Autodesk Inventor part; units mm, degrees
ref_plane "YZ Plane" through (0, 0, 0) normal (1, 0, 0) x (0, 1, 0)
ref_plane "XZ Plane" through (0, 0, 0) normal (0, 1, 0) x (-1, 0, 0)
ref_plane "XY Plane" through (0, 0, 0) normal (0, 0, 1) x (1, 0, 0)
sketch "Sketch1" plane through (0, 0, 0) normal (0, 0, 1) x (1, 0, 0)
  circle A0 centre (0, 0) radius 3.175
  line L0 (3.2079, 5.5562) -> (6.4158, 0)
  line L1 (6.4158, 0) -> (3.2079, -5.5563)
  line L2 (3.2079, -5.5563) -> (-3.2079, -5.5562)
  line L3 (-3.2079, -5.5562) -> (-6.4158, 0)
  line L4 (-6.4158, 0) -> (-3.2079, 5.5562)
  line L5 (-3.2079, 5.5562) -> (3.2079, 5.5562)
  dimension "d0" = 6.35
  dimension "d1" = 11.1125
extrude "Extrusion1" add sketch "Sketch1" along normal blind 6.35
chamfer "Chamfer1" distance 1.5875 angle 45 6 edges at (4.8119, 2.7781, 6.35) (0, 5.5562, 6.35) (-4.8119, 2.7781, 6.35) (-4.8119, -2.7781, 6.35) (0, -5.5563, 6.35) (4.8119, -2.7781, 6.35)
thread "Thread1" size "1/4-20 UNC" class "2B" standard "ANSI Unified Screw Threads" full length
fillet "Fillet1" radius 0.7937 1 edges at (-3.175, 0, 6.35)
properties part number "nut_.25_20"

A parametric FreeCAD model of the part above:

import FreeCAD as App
import Part
import Sketcher
Q = App.Units.Quantity


def edges_at(feature, points):
    """Names of the edges that pass closest to the given points."""
    edges = feature.Shape.Edges
    near = lambda p: min(range(len(edges)), key=lambda i: edges[i].distToShape(Part.Vertex(*p))[0])
    return sorted({f"Edge{near(p) + 1}" for p in points})


def add_polygon(sketch, points):
    """Adds a closed chain of lines whose ends are joined by coincident constraints."""
    first, n = sketch.GeometryCount, len(points)
    for a, b in zip(points, points[1:] + points[:1]):
        sketch.addGeometry(Part.LineSegment(App.Vector(*a, 0), App.Vector(*b, 0)), False)
    for i in range(n):
        sketch.addConstraint(Sketcher.Constraint("Coincident", first + i, 2, first + (i + 1) % n, 1))

doc = App.newDocument("Part")
body = doc.addObject("PartDesign::Body", "Body")

sketch1 = body.newObject("Sketcher::SketchObject", "Sketch")
sketch1.AttachmentSupport = (doc.getObject("XY_Plane"), [""])
sketch1.MapMode = "FlatFace"
add_polygon(sketch1, [(6.4, 0), (3.2, 5.6), (-3.2, 5.6), (-6.4, 0), (-3.2, -5.6), (3.2, -5.6)])
sketch1.addGeometry(Part.Circle(App.Vector(0, 0, 0), App.Vector(0, 0, 1), 3.2), False)
sketch1.addConstraint([
    Sketcher.Constraint("Horizontal", 1),
    Sketcher.Constraint("Horizontal", 4),
    Sketcher.Constraint("Coincident", 6, 3, -1, 1),
    Sketcher.Constraint("Symmetric", 0, 2, 3, 2, -1, 1),
    Sketcher.Constraint("Symmetric", 2, 2, 5, 2, -1, 1),
    Sketcher.Constraint("PointOnObject", 2, 2, -1),
    Sketcher.Constraint("Parallel", 2, 5),
    Sketcher.Constraint("Vertical", 1, 2, 3, 2),
    Sketcher.Constraint("Diameter", 6, Q("0.25 in")),
    Sketcher.Constraint("Angle", 0, Q("120.0002 deg")),
    Sketcher.Constraint("DistanceY", 3, 2, 1, 2, Q("0.4375 in")),
    Sketcher.Constraint("DistanceX", 1, 2, 1, 1, Q("0.2526 in")),
])
pad1 = body.newObject("PartDesign::Pad", "Pad")
pad1.Profile = sketch1
pad1.Length = Q("0.25 in")
doc.recompute()

chamfer = body.newObject("PartDesign::Chamfer", "Chamfer")
chamfer.Base = (pad1, edges_at(pad1, [
    (4.812, 2.778, 6.35),
    (0, 5.556, 6.35),
    (-4.812, 2.778, 6.35),
    (-4.812, -2.778, 6.35),
    (0, -5.556, 6.35),
    (4.812, -2.778, 6.35),
]))
chamfer.Size = Q("0.0625 in")
doc.recompute()

fillet = body.newObject("PartDesign::Fillet", "Fillet")
fillet.Base = (chamfer, edges_at(chamfer, [(-3.175, 0, 6.35)]))
fillet.Radius = Q("0.031248 in")

doc.recompute()
